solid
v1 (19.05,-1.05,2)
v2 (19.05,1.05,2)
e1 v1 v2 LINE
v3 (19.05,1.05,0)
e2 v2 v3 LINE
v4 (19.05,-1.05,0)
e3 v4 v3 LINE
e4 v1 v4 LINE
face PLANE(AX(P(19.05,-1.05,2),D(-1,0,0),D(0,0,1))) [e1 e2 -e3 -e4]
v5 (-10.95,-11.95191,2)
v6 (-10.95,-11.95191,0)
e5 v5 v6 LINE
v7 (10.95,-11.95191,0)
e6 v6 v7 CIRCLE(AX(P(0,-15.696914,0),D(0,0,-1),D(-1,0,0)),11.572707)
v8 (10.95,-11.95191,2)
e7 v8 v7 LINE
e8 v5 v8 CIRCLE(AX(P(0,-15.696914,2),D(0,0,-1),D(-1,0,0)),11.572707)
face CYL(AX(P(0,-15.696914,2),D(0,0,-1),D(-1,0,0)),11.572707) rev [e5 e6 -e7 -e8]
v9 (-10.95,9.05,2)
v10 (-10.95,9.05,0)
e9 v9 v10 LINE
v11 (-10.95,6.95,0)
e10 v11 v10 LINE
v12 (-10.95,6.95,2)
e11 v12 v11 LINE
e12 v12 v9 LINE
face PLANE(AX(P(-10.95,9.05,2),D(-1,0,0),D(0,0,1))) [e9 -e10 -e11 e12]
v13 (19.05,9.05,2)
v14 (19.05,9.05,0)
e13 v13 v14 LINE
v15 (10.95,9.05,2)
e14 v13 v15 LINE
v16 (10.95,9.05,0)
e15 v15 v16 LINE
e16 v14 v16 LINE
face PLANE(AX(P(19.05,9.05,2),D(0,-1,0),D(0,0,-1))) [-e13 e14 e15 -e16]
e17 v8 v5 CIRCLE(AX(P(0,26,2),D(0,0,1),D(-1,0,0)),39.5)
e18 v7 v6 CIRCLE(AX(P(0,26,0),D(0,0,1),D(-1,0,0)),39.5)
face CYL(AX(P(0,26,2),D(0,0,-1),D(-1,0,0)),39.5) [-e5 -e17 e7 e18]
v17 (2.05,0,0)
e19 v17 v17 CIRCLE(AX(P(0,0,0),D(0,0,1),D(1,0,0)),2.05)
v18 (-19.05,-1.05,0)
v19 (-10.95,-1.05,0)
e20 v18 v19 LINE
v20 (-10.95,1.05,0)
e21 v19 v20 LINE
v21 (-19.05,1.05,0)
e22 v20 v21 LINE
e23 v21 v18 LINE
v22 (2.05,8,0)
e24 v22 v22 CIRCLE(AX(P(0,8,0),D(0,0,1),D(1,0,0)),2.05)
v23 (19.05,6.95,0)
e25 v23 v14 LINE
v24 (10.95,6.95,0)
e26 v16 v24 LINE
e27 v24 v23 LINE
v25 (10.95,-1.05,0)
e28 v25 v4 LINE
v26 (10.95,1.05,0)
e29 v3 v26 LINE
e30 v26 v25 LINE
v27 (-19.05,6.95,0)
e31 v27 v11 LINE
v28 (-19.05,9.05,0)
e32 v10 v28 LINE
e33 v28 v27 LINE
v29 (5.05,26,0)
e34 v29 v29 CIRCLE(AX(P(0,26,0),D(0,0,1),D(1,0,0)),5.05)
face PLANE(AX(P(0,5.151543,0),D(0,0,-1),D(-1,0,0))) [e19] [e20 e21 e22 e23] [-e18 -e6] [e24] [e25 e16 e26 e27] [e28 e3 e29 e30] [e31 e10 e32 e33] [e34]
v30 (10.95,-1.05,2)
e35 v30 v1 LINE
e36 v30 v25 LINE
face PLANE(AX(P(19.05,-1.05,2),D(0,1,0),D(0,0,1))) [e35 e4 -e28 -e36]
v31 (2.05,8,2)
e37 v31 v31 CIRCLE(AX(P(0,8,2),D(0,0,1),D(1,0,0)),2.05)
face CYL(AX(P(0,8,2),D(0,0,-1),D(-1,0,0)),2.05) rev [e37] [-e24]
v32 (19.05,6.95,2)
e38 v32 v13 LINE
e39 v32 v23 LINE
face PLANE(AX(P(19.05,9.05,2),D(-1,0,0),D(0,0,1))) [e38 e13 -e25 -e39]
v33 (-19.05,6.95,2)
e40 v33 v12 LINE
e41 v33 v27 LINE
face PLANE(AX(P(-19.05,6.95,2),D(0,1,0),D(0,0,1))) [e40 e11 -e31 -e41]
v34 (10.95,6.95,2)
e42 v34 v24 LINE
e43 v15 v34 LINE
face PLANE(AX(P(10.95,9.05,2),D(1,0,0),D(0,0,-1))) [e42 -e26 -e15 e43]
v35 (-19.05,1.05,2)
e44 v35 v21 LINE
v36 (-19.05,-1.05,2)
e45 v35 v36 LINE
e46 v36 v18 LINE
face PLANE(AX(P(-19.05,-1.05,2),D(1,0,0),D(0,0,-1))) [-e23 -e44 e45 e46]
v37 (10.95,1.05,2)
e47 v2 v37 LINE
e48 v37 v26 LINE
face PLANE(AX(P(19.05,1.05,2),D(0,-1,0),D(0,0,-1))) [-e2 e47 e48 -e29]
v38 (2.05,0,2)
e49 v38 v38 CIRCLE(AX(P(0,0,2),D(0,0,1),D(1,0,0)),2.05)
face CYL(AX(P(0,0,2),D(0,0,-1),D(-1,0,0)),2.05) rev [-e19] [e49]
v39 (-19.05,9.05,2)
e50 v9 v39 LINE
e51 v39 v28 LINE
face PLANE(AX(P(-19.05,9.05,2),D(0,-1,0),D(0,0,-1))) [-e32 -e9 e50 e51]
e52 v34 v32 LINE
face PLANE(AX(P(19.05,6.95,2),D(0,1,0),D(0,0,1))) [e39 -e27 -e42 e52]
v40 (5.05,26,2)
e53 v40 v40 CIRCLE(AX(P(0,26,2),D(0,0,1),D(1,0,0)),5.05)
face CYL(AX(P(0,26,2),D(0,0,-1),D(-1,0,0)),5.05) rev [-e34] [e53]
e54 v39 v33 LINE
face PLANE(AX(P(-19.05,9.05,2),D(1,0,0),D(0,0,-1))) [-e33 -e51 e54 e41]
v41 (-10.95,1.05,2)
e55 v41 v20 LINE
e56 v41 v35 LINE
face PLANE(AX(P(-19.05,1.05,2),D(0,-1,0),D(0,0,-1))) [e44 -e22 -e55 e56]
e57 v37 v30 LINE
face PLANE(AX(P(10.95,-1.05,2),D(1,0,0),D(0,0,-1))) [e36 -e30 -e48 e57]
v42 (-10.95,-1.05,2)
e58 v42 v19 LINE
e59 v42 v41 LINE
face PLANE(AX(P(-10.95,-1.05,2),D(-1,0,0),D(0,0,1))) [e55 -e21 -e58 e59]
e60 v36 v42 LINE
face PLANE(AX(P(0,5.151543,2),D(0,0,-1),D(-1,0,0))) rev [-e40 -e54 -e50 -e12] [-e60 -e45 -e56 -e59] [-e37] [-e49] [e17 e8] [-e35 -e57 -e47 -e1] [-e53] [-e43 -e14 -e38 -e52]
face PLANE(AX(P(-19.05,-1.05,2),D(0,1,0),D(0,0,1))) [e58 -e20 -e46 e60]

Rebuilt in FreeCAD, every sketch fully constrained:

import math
import FreeCAD as App
import Part
import Sketcher
from FreeCAD import Vector


def add_polygon(sketch, points):
    """Adds a closed chain of lines whose ends are joined by coincident constraints."""
    first, n = sketch.GeometryCount, len(points)
    for a, b in zip(points, points[1:] + points[:1]):
        sketch.addGeometry(Part.LineSegment(App.Vector(*a, 0), App.Vector(*b, 0)), False)
    for i in range(n):
        sketch.addConstraint(Sketcher.Constraint("Coincident", first + i, 2, first + (i + 1) % n, 1))

doc = App.newDocument("Part")
body = doc.addObject("PartDesign::Body", "Body")

sketch1 = body.newObject("Sketcher::SketchObject", "Sketch")
sketch1.AttachmentSupport = (doc.getObject("XY_Plane"), [""])
sketch1.MapMode = "FlatFace"
sketch1.addGeometry(Part.ArcOfCircle(Part.Circle(Vector(0, -15.7, 0), Vector(0, 0, 1), 11.6), math.radians(19), math.radians(161)), False)
sketch1.addGeometry(Part.ArcOfCircle(Part.Circle(Vector(0, 26, 0), Vector(0, 0, 1), 39.5), math.radians(-74), math.radians(254)), False)
add_polygon(sketch1, [(-10.9, -1.1), (-19.1, -1.1), (-19.1, 1.1), (-10.9, 1.1)])
add_polygon(sketch1, [(-10.9, 7), (-19.1, 7), (-19.1, 9.1), (-10.9, 9.1)])
sketch1.addGeometry(Part.Circle(Vector(0, 0, 0), Vector(0, 0, 1), 2), False)
add_polygon(sketch1, [(19.1, -1.1), (10.9, -1.1), (10.9, 1.1), (19.1, 1.1)])
sketch1.addGeometry(Part.Circle(Vector(0, 8, 0), Vector(0, 0, 1), 2), False)
add_polygon(sketch1, [(19.1, 7), (10.9, 7), (10.9, 9.1), (19.1, 9.1)])
sketch1.addGeometry(Part.Circle(Vector(0, 26, 0), Vector(0, 0, 1), 5), False)
sketch1.addConstraint(Sketcher.Constraint("Coincident", 0, 1, 1, 1))
sketch1.addConstraint(Sketcher.Constraint("Coincident", 1, 2, 0, 2))
sketch1.addConstraint(Sketcher.Constraint("Horizontal", 2))
sketch1.addConstraint(Sketcher.Constraint("Vertical", 3))
sketch1.addConstraint(Sketcher.Constraint("Horizontal", 4))
sketch1.addConstraint(Sketcher.Constraint("Vertical", 5))
sketch1.addConstraint(Sketcher.Constraint("Horizontal", 6))
sketch1.addConstraint(Sketcher.Constraint("Vertical", 7))
sketch1.addConstraint(Sketcher.Constraint("Horizontal", 8))
sketch1.addConstraint(Sketcher.Constraint("Vertical", 9))
sketch1.addConstraint(Sketcher.Constraint("Horizontal", 11))
sketch1.addConstraint(Sketcher.Constraint("Vertical", 12))
sketch1.addConstraint(Sketcher.Constraint("Horizontal", 13))
sketch1.addConstraint(Sketcher.Constraint("Vertical", 14))
sketch1.addConstraint(Sketcher.Constraint("Horizontal", 16))
sketch1.addConstraint(Sketcher.Constraint("Vertical", 17))
sketch1.addConstraint(Sketcher.Constraint("Horizontal", 18))
sketch1.addConstraint(Sketcher.Constraint("Vertical", 19))
sketch1.addConstraint(Sketcher.Constraint("Coincident", 10, 3, -1, 1))
sketch1.addConstraint(Sketcher.Constraint("Coincident", 20, 3, 1, 3))
sketch1.addConstraint(Sketcher.Constraint("Equal", 10, 15))
sketch1.addConstraint(Sketcher.Constraint("Symmetric", 4, 2, 11, 2, -1, 1))
sketch1.addConstraint(Sketcher.Constraint("Symmetric", 2, 2, 13, 2, -1, 1))
sketch1.addConstraint(Sketcher.Constraint("Symmetric", 0, 1, 1, 2, -2))
sketch1.addConstraint(Sketcher.Constraint("Symmetric", 9, 2, 16, 2, -2))
sketch1.addConstraint(Sketcher.Constraint("Symmetric", 7, 2, 18, 2, -2))
sketch1.addConstraint(Sketcher.Constraint("PointOnObject", 15, 3, -2))
sketch1.addConstraint(Sketcher.Constraint("Horizontal", 5, 2, 11, 2))
sketch1.addConstraint(Sketcher.Constraint("Vertical", 1, 2, 4, 2))
sketch1.addConstraint(Sketcher.Constraint("Vertical", 3, 2, 6, 2))
sketch1.addConstraint(Sketcher.Constraint("Vertical", 5, 2, 8, 2))
sketch1.addConstraint(Sketcher.Constraint("Equal", 5, 7))
sketch1.addConstraint(Sketcher.Constraint("Diameter", 10, 4.1))
sketch1.addConstraint(Sketcher.Constraint("Diameter", 20, 10.1))
sketch1.addConstraint(Sketcher.Constraint("Radius", 1, 39.5))
sketch1.addConstraint(Sketcher.Constraint("DistanceX", 2, 2, 2, 1, 8.1))
sketch1.addConstraint(Sketcher.Constraint("DistanceY", 3, 1, 3, 2, 2.1))
sketch1.addConstraint(Sketcher.Constraint("DistanceY", -1, 1, 1, 3, 26.0))
sketch1.addConstraint(Sketcher.Constraint("DistanceY", -1, 1, 15, 3, 8.0))
sketch1.addConstraint(Sketcher.Constraint("DistanceX", 2, 2, 0, 1, 30.0))
sketch1.addConstraint(Sketcher.Constraint("DistanceY", 2, 2, 6, 2, 8.0))
sketch1.addConstraint(Sketcher.Constraint("Radius", 0, 11.572707))
pad1 = body.newObject("PartDesign::Pad", "Pad")
pad1.Profile = sketch1
pad1.Length = 2

doc.recompute()
